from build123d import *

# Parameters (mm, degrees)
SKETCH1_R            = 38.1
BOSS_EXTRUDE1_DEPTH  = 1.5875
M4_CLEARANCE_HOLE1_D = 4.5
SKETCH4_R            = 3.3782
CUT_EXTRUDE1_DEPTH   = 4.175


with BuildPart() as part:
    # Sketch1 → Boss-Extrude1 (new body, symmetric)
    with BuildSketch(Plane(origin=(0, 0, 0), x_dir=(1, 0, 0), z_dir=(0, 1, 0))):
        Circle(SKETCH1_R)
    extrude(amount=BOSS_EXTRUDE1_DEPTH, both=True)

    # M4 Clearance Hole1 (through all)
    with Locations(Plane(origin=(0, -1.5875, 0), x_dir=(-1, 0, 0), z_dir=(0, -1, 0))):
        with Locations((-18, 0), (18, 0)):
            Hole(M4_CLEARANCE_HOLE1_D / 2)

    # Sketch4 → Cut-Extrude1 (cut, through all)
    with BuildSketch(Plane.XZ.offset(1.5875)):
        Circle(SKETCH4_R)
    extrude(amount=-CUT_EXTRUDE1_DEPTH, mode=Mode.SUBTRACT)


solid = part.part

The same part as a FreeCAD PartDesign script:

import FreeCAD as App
import Part
import Sketcher
from FreeCAD import Vector
Q = App.Units.Quantity

doc = App.newDocument("Part")
body = doc.addObject("PartDesign::Body", "Body")

sketch1 = body.newObject("Sketcher::SketchObject", "Sketch")
sketch1.AttachmentSupport = (doc.getObject("XZ_Plane"), [""])
sketch1.MapMode = "FlatFace"
sketch1.addGeometry(Part.Circle(Vector(0, 0, 0), Vector(0, 0, 1), 38.1), False)
sketch1.addConstraint(Sketcher.Constraint("Coincident", 0, 3, -1, 1))
sketch1.addConstraint(Sketcher.Constraint("Diameter", 0, Q("3 in")))
pad1 = body.newObject("PartDesign::Pad", "Pad")
pad1.Profile = sketch1
pad1.Length = Q("0.125 in")
pad1.Midplane = True

sketch2 = body.newObject("Sketcher::SketchObject", "Sketch001")
sketch2.AttachmentSupport = (doc.getObject("XZ_Plane"), [""])
sketch2.MapMode = "FlatFace"
sketch2.AttachmentOffset = App.Placement(Vector(0, 0, 0.0625 * 25.4), App.Rotation())
sketch2.addGeometry(Part.Circle(Vector(18, 0, 0), Vector(0, 0, 1), 2.25), False)
sketch2.addGeometry(Part.Circle(Vector(-18, 0, 0), Vector(0, 0, 1), 2.25), False)
sketch2.addConstraint(Sketcher.Constraint("Equal", 0, 1))
sketch2.addConstraint(Sketcher.Constraint("Symmetric", 0, 3, 1, 3, -1, 1))
sketch2.addConstraint(Sketcher.Constraint("PointOnObject", 0, 3, -1))
sketch2.addConstraint(Sketcher.Constraint("Diameter", 0, 4.5))
sketch2.addConstraint(Sketcher.Constraint("DistanceX", -1, 1, 0, 3, 18.0))
doc.recompute()
hole = body.newObject("PartDesign::Hole", "Hole")
hole.Profile = sketch2
hole.ThreadType = "None"
hole.Diameter = 4.5
hole.DepthType = "ThroughAll"

sketch3 = body.newObject("Sketcher::SketchObject", "Sketch002")
sketch3.AttachmentSupport = (doc.getObject("XZ_Plane"), [""])
sketch3.MapMode = "FlatFace"
sketch3.AttachmentOffset = App.Placement(Vector(0, 0, 0.0625 * 25.4), App.Rotation())
sketch3.addGeometry(Part.Circle(Vector(0, 0, 0), Vector(0, 0, 1), 3.3782), False)
sketch3.addConstraint(Sketcher.Constraint("Coincident", 0, 3, -1, 1))
sketch3.addConstraint(Sketcher.Constraint("Diameter", 0, Q("0.266 in")))
pocket1 = body.newObject("PartDesign::Pocket", "Pocket")
pocket1.Profile = sketch3
pocket1.Type = "ThroughAll"

doc.recompute()
